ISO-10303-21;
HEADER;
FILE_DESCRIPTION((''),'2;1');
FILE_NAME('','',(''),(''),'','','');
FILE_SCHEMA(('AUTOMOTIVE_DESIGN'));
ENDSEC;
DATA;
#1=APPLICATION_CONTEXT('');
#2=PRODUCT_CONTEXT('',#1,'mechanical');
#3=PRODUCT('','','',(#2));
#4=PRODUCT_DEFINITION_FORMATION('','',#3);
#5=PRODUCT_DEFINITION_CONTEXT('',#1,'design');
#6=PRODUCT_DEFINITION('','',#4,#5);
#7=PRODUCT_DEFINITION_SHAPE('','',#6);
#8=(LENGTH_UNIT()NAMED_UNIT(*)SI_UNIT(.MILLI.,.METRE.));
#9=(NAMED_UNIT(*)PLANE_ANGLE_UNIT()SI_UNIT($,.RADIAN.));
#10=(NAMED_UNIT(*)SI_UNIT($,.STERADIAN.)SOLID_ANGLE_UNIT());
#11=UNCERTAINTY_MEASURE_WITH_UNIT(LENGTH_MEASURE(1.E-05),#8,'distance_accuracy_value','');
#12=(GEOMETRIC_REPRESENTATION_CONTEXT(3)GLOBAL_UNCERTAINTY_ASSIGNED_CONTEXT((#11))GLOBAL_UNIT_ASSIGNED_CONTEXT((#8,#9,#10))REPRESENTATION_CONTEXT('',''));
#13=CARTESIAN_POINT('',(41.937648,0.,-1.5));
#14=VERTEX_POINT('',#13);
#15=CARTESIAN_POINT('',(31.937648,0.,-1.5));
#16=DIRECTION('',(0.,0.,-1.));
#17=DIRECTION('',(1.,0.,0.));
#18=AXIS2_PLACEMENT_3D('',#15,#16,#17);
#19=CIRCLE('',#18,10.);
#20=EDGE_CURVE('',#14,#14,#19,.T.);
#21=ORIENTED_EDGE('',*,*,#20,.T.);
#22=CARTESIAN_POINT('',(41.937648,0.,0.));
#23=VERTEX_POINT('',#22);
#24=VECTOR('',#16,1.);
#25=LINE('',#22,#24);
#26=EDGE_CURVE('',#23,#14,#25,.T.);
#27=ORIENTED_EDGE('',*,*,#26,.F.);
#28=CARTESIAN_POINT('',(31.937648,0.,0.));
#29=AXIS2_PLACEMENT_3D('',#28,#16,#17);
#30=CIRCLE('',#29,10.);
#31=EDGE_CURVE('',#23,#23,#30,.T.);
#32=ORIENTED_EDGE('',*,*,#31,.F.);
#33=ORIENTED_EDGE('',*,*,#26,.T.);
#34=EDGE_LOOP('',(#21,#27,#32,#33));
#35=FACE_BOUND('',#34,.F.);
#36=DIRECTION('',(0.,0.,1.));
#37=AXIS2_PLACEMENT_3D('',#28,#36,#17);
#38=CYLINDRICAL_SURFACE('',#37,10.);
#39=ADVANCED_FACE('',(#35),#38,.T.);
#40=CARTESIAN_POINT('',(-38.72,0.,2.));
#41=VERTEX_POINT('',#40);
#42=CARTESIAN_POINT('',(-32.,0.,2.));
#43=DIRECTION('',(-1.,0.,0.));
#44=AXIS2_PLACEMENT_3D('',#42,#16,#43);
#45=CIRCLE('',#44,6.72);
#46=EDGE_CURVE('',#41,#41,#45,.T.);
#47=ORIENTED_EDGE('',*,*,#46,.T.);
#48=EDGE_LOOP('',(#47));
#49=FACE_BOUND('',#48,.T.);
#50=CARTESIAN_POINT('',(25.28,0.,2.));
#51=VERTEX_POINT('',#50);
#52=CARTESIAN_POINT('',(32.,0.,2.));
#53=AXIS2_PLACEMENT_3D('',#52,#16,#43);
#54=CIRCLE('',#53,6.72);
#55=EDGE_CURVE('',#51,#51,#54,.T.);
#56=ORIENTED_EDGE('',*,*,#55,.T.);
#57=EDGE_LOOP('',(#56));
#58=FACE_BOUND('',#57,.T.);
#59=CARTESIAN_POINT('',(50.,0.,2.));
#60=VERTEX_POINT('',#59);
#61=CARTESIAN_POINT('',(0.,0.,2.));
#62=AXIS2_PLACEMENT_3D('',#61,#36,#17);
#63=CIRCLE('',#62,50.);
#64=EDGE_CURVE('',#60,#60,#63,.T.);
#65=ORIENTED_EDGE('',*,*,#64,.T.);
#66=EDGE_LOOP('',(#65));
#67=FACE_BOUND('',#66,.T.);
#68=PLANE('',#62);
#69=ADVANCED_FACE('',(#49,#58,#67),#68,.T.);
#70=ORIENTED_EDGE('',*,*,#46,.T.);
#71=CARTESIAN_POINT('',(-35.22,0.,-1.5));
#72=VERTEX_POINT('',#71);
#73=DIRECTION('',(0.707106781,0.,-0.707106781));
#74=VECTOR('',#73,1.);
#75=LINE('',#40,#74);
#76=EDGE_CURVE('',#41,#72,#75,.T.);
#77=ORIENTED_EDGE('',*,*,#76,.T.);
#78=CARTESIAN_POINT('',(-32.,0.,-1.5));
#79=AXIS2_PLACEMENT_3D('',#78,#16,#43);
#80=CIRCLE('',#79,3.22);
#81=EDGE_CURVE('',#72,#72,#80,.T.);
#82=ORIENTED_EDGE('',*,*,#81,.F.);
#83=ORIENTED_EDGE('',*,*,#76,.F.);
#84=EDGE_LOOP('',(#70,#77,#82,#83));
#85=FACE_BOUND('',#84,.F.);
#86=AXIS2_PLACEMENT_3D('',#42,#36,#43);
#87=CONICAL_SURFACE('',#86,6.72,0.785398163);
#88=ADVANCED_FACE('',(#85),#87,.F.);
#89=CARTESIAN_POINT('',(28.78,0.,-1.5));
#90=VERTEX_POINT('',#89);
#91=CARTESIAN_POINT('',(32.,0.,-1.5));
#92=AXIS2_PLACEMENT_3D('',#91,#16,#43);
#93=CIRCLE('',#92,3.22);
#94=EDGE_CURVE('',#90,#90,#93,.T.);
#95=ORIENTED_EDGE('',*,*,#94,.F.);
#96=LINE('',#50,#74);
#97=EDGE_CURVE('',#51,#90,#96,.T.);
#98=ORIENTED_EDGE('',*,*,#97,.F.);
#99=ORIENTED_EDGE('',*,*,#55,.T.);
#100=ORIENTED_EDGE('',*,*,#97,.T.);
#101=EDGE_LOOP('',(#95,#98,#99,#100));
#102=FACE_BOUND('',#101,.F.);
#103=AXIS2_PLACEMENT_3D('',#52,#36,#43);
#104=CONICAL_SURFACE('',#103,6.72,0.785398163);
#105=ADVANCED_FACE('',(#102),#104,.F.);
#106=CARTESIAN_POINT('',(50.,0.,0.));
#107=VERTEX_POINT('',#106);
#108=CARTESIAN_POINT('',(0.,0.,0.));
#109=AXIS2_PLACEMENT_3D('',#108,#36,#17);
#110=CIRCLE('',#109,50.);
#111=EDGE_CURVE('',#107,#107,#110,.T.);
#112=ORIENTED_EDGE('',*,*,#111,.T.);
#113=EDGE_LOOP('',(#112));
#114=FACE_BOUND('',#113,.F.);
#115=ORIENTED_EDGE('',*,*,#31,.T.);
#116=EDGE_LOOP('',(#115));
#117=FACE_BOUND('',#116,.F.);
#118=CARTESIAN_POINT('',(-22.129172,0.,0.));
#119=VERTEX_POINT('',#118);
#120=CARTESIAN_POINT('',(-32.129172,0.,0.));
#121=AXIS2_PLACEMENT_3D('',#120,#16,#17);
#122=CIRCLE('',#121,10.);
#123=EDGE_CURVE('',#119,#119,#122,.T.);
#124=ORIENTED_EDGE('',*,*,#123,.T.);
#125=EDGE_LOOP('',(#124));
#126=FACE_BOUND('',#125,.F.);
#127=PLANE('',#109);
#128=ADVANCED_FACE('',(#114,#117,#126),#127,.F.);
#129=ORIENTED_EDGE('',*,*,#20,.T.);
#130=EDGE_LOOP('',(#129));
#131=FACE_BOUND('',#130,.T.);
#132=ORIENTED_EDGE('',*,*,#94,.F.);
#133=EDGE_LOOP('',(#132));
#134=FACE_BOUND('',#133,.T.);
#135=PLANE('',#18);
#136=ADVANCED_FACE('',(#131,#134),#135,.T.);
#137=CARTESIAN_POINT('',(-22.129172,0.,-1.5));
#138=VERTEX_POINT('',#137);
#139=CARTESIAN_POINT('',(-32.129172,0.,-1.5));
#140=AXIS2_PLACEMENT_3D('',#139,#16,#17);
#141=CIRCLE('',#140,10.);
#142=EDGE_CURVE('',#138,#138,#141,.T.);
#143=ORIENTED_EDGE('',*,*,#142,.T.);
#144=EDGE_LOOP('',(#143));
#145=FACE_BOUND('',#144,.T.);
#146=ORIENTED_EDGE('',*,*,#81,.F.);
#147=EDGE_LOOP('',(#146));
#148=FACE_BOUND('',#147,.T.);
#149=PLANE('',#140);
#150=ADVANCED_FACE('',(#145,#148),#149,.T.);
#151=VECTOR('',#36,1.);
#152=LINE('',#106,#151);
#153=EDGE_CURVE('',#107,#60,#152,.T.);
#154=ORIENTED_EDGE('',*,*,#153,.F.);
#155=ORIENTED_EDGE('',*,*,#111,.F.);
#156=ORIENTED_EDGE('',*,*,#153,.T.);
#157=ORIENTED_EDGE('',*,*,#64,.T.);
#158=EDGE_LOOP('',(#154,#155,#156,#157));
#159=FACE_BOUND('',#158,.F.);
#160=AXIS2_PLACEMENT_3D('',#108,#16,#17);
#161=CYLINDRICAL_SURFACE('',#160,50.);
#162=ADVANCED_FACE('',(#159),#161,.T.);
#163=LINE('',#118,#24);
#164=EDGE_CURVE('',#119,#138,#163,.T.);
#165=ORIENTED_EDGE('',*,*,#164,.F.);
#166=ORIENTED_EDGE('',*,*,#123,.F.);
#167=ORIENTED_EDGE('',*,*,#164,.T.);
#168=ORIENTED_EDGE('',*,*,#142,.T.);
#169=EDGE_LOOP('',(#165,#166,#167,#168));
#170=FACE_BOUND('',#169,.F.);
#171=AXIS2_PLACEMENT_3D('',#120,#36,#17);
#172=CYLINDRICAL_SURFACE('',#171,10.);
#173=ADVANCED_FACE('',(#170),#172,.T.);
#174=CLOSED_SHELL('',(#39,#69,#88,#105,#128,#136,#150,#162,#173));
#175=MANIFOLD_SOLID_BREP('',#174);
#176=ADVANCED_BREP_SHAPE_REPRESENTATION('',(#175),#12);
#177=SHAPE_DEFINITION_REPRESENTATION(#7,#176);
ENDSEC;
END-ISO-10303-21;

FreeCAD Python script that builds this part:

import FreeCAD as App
import Part
import Sketcher
from FreeCAD import Vector
Q = App.Units.Quantity

doc = App.newDocument("Part")
body = doc.addObject("PartDesign::Body", "Body")

sketch1 = body.newObject("Sketcher::SketchObject", "Sketch")
sketch1.AttachmentSupport = (doc.getObject("XY_Plane"), [""])
sketch1.MapMode = "FlatFace"
sketch1.addGeometry(Part.Circle(Vector(0, 0, 0), Vector(0, 0, 1), 50), False)
sketch1.addConstraint([
    Sketcher.Constraint("Coincident", 0, 3, -1, 1),
    Sketcher.Constraint("Diameter", 0, Q("100 mm")),
])
pad1 = body.newObject("PartDesign::Pad", "Pad")
pad1.Profile = sketch1
pad1.Length = 2

sketch2 = body.newObject("Sketcher::SketchObject", "Sketch001")
sketch2.AttachmentSupport = (doc.getObject("XY_Plane"), [""])
sketch2.MapMode = "FlatFace"
sketch2.addGeometry([
    Part.Circle(Vector(31.937648, 0, 0), Vector(0, 0, 1), 10),
    Part.Circle(Vector(-32.129172, 0, 0), Vector(0, 0, 1), 10),
], False)
sketch2.addConstraint([
    Sketcher.Constraint("Equal", 0, 1),
    Sketcher.Constraint("PointOnObject", 0, 3, -1),
    Sketcher.Constraint("PointOnObject", 1, 3, -1),
    Sketcher.Constraint("Diameter", 0, Q("20 mm")),
    Sketcher.Constraint("DistanceX", 1, 3, 0, 3, Q("64.06682 mm")),
    Sketcher.Constraint("DistanceX", -1, 1, 0, 3, Q("31.937648 mm")),
])
pad2 = body.newObject("PartDesign::Pad", "Pad001")
pad2.Profile = sketch2
pad2.Length = 1.5
pad2.Reversed = True

sketch3 = body.newObject("Sketcher::SketchObject", "Sketch002")
sketch3.AttachmentSupport = (doc.getObject("XY_Plane"), [""])
sketch3.MapMode = "FlatFace"
sketch3.AttachmentOffset = App.Placement(Vector(0, 0, 2), App.Rotation())
sketch3.addGeometry([
    Part.Circle(Vector(-32, 0, 0), Vector(0, 0, 1), 3.2),
    Part.Circle(Vector(32, 0, 0), Vector(0, 0, 1), 3.2),
], False)
sketch3.addConstraint([
    Sketcher.Constraint("Equal", 0, 1),
    Sketcher.Constraint("Symmetric", 0, 3, 1, 3, -1, 1),
    Sketcher.Constraint("PointOnObject", 0, 3, -1),
    Sketcher.Constraint("Diameter", 0, Q("6.4 mm")),
    Sketcher.Constraint("DistanceX", 0, 3, -1, 1, Q("32 mm")),
])
doc.recompute()
hole = body.newObject("PartDesign::Hole", "Hole")
hole.Profile = sketch3
hole.ThreadType = "None"
hole.Diameter = 6.4
hole.DepthType = "ThroughAll"
hole.HoleCutType = "Countersink"
hole.HoleCutDiameter = 13.44
hole.HoleCutCountersinkAngle = 90

doc.recompute()
